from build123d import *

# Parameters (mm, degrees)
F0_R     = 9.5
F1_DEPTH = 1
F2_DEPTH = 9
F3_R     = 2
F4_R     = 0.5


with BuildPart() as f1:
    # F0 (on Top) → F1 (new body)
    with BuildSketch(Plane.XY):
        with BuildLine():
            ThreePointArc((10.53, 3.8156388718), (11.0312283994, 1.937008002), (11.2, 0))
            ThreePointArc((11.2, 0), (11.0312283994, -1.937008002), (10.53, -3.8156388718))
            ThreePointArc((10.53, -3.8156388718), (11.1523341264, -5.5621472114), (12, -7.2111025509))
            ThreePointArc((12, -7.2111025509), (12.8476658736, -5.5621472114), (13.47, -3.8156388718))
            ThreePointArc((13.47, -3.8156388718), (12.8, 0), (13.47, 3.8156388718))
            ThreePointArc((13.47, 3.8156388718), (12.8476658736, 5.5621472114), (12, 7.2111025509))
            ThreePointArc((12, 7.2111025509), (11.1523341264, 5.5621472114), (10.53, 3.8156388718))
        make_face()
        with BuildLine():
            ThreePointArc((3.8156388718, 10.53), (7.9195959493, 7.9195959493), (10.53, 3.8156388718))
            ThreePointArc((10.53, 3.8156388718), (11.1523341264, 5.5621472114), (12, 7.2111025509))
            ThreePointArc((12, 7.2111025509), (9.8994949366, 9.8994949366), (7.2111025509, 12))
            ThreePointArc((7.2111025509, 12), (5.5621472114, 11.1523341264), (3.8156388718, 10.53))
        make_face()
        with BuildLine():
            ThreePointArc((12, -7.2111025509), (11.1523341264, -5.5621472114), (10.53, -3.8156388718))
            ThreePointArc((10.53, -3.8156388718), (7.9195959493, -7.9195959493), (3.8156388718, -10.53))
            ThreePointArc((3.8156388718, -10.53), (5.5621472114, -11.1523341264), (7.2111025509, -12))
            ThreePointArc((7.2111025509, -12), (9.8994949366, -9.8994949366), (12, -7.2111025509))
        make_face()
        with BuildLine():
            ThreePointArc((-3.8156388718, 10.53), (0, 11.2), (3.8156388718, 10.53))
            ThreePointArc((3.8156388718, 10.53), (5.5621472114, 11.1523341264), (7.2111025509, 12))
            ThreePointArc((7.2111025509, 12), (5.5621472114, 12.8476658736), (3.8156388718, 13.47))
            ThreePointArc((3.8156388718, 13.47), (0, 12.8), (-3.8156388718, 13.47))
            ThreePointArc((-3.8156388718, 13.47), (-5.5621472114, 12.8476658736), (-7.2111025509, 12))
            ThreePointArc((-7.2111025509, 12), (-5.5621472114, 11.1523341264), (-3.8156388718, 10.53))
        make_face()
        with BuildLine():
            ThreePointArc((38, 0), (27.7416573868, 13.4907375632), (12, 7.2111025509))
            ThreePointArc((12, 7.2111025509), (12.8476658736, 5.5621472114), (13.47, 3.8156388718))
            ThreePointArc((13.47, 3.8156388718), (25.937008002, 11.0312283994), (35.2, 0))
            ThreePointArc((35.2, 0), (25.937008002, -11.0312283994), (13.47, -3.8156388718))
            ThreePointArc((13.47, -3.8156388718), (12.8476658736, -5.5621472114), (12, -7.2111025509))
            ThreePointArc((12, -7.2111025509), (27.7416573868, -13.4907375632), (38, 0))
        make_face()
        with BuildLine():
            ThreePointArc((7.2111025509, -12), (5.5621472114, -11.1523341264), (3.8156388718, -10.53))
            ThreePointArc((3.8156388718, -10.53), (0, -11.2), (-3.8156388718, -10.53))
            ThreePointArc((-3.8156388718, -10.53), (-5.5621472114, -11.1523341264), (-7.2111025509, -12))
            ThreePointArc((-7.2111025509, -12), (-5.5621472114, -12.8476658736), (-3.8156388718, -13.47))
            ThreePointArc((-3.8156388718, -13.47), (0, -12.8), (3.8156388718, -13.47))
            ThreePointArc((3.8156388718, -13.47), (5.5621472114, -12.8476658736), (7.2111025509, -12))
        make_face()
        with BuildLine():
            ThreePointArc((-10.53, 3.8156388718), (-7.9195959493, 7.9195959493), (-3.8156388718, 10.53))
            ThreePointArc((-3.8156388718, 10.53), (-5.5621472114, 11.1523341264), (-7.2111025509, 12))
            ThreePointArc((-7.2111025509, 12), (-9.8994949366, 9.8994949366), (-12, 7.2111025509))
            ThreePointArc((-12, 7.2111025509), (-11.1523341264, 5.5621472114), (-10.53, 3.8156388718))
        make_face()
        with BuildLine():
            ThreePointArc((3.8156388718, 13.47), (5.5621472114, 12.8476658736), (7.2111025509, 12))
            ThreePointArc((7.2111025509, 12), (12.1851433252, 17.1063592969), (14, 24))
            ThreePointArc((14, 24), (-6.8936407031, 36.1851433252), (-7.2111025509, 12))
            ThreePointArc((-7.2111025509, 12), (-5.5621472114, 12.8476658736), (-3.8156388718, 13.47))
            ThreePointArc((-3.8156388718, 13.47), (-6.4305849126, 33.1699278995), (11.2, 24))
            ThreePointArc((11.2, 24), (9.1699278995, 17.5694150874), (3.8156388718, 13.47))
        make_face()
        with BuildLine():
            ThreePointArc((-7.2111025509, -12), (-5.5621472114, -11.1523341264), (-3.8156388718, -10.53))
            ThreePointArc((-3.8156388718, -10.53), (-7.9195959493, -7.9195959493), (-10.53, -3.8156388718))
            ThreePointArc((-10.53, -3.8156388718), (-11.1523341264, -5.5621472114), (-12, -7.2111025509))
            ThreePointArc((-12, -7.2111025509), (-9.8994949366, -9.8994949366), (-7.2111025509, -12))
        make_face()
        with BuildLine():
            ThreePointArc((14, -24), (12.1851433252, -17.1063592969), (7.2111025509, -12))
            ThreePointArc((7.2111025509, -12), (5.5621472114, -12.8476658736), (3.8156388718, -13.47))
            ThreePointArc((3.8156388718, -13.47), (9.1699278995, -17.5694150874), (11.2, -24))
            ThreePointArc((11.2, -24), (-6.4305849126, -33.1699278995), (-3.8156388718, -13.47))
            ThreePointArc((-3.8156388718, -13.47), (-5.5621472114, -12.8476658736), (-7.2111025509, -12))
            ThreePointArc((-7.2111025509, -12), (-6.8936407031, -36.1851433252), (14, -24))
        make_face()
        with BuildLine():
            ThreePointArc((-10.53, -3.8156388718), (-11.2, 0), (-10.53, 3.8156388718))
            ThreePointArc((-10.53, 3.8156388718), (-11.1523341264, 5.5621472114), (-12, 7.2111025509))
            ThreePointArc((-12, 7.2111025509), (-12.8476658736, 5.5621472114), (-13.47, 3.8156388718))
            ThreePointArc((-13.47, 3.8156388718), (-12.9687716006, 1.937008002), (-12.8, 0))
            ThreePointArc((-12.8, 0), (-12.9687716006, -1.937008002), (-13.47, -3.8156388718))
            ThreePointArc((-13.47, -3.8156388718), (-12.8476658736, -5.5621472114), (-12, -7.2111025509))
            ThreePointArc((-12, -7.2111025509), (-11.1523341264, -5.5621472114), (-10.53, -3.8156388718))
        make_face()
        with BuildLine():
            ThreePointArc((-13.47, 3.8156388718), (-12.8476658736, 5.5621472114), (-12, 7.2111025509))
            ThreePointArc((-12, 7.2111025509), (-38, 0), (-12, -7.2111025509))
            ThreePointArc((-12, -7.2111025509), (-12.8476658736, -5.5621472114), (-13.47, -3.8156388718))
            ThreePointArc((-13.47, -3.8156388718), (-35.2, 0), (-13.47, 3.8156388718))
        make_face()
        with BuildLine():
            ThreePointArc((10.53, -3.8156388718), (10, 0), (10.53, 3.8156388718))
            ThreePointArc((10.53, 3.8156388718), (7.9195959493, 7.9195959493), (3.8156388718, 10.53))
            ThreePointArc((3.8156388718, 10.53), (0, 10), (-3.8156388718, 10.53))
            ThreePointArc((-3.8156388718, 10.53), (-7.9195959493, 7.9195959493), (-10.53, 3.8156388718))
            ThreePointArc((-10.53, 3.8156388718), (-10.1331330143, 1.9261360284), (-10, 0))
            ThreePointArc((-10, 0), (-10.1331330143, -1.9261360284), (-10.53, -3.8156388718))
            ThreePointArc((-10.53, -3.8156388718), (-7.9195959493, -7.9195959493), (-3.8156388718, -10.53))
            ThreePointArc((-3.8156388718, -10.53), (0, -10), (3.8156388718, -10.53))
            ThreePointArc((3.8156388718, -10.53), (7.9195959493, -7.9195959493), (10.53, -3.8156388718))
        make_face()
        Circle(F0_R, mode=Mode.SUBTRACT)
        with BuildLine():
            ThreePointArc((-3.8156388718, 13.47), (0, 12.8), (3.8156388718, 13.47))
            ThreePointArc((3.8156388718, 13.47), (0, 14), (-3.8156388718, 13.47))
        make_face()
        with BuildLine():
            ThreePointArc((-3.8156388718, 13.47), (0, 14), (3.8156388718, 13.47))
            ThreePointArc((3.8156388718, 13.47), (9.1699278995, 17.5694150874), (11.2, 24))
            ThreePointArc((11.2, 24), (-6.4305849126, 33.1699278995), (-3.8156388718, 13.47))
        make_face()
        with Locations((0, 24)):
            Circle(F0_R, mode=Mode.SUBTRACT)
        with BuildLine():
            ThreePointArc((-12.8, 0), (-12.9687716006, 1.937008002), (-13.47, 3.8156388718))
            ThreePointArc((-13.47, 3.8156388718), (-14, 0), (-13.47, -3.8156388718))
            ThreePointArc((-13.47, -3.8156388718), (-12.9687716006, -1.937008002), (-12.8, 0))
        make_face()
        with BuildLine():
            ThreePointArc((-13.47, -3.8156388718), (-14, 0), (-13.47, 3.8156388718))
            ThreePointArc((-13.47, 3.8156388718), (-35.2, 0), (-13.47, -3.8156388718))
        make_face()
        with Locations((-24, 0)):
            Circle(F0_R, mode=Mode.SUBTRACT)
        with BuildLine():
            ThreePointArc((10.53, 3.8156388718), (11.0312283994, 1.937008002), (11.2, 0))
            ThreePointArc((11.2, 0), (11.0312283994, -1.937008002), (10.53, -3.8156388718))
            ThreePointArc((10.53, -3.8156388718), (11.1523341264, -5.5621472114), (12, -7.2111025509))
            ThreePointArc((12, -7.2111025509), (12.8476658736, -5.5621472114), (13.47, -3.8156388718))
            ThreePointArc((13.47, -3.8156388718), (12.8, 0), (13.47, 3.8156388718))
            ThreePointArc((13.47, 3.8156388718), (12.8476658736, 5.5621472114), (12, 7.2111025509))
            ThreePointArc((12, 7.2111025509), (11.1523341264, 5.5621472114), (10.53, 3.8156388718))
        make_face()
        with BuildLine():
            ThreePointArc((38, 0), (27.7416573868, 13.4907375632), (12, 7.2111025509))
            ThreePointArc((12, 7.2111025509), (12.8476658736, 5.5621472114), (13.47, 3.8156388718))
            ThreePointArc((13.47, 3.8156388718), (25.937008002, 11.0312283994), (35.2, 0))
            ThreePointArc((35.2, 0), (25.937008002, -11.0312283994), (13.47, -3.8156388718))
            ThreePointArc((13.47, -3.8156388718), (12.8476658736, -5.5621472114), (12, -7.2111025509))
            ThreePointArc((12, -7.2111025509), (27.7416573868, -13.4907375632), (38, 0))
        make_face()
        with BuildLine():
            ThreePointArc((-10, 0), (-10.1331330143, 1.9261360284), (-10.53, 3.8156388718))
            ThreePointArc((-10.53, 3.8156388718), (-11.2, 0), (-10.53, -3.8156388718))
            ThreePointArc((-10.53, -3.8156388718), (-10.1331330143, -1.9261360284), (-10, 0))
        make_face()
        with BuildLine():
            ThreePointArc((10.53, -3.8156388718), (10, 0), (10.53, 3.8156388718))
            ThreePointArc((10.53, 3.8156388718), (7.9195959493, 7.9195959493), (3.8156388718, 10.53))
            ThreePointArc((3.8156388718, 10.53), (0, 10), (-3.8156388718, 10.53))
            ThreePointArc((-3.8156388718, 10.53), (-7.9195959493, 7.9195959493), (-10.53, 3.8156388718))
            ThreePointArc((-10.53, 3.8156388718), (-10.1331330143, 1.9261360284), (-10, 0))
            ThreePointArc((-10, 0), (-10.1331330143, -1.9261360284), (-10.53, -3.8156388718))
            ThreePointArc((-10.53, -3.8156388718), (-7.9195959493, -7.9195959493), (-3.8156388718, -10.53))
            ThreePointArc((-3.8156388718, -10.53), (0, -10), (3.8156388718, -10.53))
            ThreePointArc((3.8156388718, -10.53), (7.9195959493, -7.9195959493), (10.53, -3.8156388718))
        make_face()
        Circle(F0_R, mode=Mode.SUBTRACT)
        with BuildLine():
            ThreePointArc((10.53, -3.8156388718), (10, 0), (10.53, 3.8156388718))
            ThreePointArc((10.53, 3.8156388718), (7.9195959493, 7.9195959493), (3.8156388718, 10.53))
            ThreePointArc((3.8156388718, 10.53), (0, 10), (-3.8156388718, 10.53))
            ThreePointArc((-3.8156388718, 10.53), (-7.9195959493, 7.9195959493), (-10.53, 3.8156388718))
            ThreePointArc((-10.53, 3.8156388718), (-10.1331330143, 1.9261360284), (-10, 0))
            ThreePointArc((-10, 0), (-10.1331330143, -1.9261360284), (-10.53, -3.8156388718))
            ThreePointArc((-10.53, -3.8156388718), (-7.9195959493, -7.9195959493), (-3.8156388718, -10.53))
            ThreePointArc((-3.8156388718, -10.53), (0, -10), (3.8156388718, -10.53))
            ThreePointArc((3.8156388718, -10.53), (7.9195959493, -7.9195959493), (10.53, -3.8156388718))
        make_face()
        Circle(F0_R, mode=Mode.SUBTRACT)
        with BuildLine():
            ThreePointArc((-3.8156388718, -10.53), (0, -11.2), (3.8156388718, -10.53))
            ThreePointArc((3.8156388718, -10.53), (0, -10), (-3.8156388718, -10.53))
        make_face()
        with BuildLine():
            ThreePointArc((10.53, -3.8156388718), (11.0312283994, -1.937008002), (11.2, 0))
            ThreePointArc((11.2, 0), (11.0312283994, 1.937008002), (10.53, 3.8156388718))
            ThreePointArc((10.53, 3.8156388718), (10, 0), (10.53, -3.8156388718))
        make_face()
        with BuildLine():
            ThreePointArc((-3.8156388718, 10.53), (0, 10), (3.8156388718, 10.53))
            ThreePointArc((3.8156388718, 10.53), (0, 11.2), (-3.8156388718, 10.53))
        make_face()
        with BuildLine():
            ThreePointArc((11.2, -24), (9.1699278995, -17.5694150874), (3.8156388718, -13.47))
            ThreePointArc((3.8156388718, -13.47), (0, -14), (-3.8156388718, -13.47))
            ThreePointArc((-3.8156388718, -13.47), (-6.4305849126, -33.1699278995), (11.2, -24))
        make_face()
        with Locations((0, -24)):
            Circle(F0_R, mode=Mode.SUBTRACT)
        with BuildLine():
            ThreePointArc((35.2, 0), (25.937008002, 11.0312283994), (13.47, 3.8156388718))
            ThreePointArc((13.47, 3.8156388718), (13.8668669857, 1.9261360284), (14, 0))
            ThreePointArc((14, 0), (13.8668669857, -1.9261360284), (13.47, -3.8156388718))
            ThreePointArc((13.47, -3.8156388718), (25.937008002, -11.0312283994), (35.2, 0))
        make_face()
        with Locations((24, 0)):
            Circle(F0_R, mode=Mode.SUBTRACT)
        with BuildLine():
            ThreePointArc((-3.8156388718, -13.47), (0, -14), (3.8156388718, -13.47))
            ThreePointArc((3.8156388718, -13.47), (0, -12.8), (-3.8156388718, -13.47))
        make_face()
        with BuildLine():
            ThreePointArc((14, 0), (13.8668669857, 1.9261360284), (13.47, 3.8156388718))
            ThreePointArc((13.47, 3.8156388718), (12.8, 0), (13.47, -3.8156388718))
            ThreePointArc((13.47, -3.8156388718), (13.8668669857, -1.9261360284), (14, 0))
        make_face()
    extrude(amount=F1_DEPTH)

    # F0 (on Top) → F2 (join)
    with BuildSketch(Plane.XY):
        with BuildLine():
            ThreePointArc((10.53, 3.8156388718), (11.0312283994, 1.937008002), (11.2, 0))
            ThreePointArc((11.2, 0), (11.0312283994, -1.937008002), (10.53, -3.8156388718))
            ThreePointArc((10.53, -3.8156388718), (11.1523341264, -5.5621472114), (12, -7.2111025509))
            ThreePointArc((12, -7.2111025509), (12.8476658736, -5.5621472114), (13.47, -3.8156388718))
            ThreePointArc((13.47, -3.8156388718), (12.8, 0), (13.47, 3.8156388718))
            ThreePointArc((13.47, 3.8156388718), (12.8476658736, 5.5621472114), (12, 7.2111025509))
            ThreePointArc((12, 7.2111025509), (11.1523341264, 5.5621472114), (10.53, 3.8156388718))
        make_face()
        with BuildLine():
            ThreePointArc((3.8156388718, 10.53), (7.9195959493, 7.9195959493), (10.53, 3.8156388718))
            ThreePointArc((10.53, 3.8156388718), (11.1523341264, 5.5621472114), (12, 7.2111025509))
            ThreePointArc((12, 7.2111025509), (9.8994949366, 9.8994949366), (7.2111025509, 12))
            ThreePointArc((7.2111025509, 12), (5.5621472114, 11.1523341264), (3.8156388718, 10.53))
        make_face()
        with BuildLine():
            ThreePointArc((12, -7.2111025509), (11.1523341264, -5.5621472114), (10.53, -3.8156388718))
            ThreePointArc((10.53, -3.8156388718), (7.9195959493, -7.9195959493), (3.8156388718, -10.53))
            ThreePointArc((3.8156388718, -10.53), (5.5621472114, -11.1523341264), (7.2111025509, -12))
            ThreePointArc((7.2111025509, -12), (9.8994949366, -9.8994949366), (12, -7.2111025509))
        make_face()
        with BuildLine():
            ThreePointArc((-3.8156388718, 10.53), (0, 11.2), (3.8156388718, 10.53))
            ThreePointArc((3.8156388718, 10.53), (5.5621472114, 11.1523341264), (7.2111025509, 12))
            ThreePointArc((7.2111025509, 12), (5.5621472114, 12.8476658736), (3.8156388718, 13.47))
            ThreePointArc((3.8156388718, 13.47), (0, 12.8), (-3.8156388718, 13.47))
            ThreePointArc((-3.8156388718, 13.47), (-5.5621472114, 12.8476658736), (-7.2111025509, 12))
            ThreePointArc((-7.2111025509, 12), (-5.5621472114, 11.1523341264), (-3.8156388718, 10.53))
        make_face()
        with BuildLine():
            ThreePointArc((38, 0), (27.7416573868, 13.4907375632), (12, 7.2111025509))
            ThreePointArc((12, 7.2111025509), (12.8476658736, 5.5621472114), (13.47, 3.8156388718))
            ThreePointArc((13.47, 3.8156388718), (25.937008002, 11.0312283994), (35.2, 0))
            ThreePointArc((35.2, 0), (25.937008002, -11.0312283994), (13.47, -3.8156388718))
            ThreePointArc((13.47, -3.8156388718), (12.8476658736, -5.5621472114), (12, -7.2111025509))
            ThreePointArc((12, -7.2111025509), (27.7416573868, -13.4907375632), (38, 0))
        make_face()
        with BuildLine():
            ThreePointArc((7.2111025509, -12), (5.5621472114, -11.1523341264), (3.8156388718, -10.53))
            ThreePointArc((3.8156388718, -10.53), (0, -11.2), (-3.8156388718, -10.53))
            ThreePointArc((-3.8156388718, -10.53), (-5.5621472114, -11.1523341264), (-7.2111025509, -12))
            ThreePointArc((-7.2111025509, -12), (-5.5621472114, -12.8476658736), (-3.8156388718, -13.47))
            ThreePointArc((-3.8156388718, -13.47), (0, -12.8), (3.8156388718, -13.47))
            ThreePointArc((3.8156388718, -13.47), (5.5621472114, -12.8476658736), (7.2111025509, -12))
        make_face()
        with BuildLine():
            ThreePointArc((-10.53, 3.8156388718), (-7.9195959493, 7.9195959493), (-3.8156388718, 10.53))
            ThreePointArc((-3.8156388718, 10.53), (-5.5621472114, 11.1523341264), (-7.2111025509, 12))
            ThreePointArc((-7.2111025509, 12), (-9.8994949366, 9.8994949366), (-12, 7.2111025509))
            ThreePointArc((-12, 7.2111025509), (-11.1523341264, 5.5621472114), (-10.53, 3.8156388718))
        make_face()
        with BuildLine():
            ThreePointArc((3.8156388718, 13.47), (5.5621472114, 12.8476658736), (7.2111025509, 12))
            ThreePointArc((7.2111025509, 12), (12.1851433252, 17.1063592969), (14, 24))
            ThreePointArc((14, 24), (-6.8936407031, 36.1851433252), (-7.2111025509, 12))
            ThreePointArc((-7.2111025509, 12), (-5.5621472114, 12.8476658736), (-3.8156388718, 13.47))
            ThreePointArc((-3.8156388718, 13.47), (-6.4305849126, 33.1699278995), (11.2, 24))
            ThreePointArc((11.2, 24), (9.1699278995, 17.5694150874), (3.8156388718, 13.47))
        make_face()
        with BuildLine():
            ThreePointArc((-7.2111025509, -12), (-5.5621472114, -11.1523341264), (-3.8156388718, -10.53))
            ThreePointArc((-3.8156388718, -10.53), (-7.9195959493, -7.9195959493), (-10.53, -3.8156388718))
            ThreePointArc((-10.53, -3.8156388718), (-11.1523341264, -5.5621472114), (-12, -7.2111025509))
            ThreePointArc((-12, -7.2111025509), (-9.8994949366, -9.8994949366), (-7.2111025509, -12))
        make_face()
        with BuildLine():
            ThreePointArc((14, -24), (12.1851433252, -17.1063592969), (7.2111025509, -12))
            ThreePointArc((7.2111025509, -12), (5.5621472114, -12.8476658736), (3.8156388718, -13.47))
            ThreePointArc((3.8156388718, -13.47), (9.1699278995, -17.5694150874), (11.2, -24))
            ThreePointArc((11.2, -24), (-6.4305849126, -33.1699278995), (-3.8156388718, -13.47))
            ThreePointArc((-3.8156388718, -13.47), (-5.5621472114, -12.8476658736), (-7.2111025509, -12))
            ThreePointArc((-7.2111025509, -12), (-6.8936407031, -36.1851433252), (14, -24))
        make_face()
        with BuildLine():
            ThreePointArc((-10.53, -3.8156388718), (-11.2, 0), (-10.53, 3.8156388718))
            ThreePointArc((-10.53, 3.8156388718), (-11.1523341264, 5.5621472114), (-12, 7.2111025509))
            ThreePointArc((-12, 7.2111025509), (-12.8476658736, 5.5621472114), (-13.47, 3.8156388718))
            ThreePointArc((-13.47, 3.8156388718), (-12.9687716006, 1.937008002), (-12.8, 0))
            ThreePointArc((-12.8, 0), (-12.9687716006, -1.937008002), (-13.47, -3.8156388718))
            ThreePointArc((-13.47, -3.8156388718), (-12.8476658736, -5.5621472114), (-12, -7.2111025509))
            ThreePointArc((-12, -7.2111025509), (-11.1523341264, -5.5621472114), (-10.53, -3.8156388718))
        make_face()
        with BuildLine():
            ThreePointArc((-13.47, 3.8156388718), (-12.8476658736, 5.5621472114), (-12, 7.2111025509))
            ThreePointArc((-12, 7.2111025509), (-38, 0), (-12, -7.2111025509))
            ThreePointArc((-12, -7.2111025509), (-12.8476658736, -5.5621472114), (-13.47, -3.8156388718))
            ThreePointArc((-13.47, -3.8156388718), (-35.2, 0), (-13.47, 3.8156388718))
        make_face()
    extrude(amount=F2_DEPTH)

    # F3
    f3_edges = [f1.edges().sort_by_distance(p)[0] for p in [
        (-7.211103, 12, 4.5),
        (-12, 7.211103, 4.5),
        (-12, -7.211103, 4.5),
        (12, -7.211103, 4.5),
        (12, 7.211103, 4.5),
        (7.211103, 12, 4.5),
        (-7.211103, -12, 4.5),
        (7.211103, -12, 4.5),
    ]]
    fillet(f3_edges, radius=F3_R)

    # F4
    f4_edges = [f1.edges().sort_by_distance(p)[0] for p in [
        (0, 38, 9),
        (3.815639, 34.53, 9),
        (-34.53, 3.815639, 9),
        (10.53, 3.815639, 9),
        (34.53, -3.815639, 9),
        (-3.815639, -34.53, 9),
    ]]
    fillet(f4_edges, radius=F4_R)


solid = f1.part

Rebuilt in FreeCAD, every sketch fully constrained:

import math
import FreeCAD as App
import Part
import Sketcher
from FreeCAD import Vector
Q = App.Units.Quantity


def edges_at(feature, points):
    """Names of the edges that pass closest to the given points."""
    edges = feature.Shape.Edges
    near = lambda p: min(range(len(edges)), key=lambda i: edges[i].distToShape(Part.Vertex(*p))[0])
    return sorted({f"Edge{near(p) + 1}" for p in points})

doc = App.newDocument("Part")
body = doc.addObject("PartDesign::Body", "Body")

sketch1 = body.newObject("Sketcher::SketchObject", "Sketch")
sketch1.AttachmentSupport = (doc.getObject("XY_Plane"), [""])
sketch1.MapMode = "FlatFace"
sketch1.addGeometry([
    Part.ArcOfCircle(Part.Circle(Vector(0, 0, 0), Vector(0, 0, 1), 14), math.radians(121), math.radians(149)),
    Part.ArcOfCircle(Part.Circle(Vector(-24, 0, 0), Vector(0, 0, 1), 14), math.radians(31), math.radians(329)),
    Part.ArcOfCircle(Part.Circle(Vector(0, 0, 0), Vector(0, 0, 1), 14), math.radians(-149), math.radians(-121)),
    Part.ArcOfCircle(Part.Circle(Vector(0, -24, 0), Vector(0, 0, 1), 14), math.radians(121), math.radians(360)),
    Part.ArcOfCircle(Part.Circle(Vector(0, -24, 0), Vector(0, 0, 1), 14), math.radians(0), math.radians(59)),
    Part.ArcOfCircle(Part.Circle(Vector(0, 0, 0), Vector(0, 0, 1), 14), math.radians(-59), math.radians(-31)),
    Part.ArcOfCircle(Part.Circle(Vector(24, 0, 0), Vector(0, 0, 1), 14), math.radians(-149), math.radians(0)),
    Part.ArcOfCircle(Part.Circle(Vector(24, 0, 0), Vector(0, 0, 1), 14), math.radians(0), math.radians(149)),
    Part.ArcOfCircle(Part.Circle(Vector(0, 0, 0), Vector(0, 0, 1), 14), math.radians(31), math.radians(59)),
    Part.ArcOfCircle(Part.Circle(Vector(0, 24, 0), Vector(0, 0, 1), 14), math.radians(-59), math.radians(0)),
    Part.ArcOfCircle(Part.Circle(Vector(0, 24, 0), Vector(0, 0, 1), 14), math.radians(0), math.radians(239)),
    Part.Circle(Vector(0, -24, 0), Vector(0, 0, 1), 10),
    Part.Circle(Vector(-24, 0, 0), Vector(0, 0, 1), 10),
    Part.Circle(Vector(0, 0, 0), Vector(0, 0, 1), 10),
    Part.Circle(Vector(24, 0, 0), Vector(0, 0, 1), 10),
    Part.Circle(Vector(0, 24, 0), Vector(0, 0, 1), 10),
], False)
sketch1.addConstraint([
    Sketcher.Constraint("Coincident", 0, 2, 1, 1),
    Sketcher.Constraint("Coincident", 1, 2, 2, 1),
    Sketcher.Constraint("Coincident", 2, 2, 3, 1),
    Sketcher.Constraint("Tangent", 3, 2, 4, 1),
    Sketcher.Constraint("Coincident", 4, 2, 5, 1),
    Sketcher.Constraint("Coincident", 5, 2, 6, 1),
    Sketcher.Constraint("Tangent", 6, 2, 7, 1),
    Sketcher.Constraint("Coincident", 7, 2, 8, 1),
    Sketcher.Constraint("Coincident", 8, 2, 9, 1),
    Sketcher.Constraint("Tangent", 9, 2, 10, 1),
    Sketcher.Constraint("Coincident", 10, 2, 0, 1),
    Sketcher.Constraint("Coincident", 0, 3, -1, 1),
    Sketcher.Constraint("Coincident", 2, 3, -1, 1),
    Sketcher.Constraint("Coincident", 5, 3, -1, 1),
    Sketcher.Constraint("Coincident", 8, 3, -1, 1),
    Sketcher.Constraint("Coincident", 13, 3, -1, 1),
    Sketcher.Constraint("Coincident", 11, 3, 3, 3),
    Sketcher.Constraint("Coincident", 12, 3, 1, 3),
    Sketcher.Constraint("Coincident", 14, 3, 6, 3),
    Sketcher.Constraint("Coincident", 15, 3, 9, 3),
    Sketcher.Constraint("Equal", 0, 1),
    Sketcher.Constraint("Equal", 1, 2),
    Sketcher.Constraint("Equal", 2, 3),
    Sketcher.Constraint("Equal", 3, 4),
    Sketcher.Constraint("Equal", 4, 5),
    Sketcher.Constraint("Equal", 5, 6),
    Sketcher.Constraint("Equal", 6, 7),
    Sketcher.Constraint("Equal", 7, 8),
    Sketcher.Constraint("Equal", 8, 9),
    Sketcher.Constraint("Equal", 9, 10),
    Sketcher.Constraint("Equal", 11, 12),
    Sketcher.Constraint("Equal", 12, 13),
    Sketcher.Constraint("Equal", 13, 14),
    Sketcher.Constraint("Equal", 14, 15),
    Sketcher.Constraint("Symmetric", 1, 3, 6, 3, -1, 1),
    Sketcher.Constraint("Symmetric", 3, 3, 9, 3, -1, 1),
    Sketcher.Constraint("Symmetric", 3, 2, 9, 2, -1),
    Sketcher.Constraint("PointOnObject", 1, 3, -1),
    Sketcher.Constraint("PointOnObject", 6, 2, -1),
    Sketcher.Constraint("Horizontal", 11, 3, 3, 2),
    Sketcher.Constraint("Diameter", 11, Q("19 mm")),
    Sketcher.Constraint("Radius", 0, Q("14 mm")),
    Sketcher.Constraint("DistanceX", 1, 3, -1, 1, Q("24 mm")),
    Sketcher.Constraint("DistanceY", 3, 3, -1, 1, Q("24 mm")),
])
pad1 = body.newObject("PartDesign::Pad", "Pad")
pad1.Profile = sketch1
pad1.Length = 1

sketch2 = body.newObject("Sketcher::SketchObject", "Sketch001")
sketch2.AttachmentSupport = (doc.getObject("XY_Plane"), [""])
sketch2.MapMode = "FlatFace"
sketch2.addGeometry([
    Part.ArcOfCircle(Part.Circle(Vector(0, 0, 0), Vector(0, 0, 1), 14), math.radians(-149), math.radians(-121)),
    Part.ArcOfCircle(Part.Circle(Vector(0, -24, 0), Vector(0, 0, 1), 14), math.radians(121), math.radians(360)),
    Part.ArcOfCircle(Part.Circle(Vector(0, -24, 0), Vector(0, 0, 1), 14), math.radians(0), math.radians(59)),
    Part.ArcOfCircle(Part.Circle(Vector(0, 0, 0), Vector(0, 0, 1), 14), math.radians(-59), math.radians(-31)),
    Part.ArcOfCircle(Part.Circle(Vector(24, 0, 0), Vector(0, 0, 1), 14), math.radians(-149), math.radians(0)),
    Part.ArcOfCircle(Part.Circle(Vector(24, 0, 0), Vector(0, 0, 1), 14), math.radians(0), math.radians(149)),
    Part.ArcOfCircle(Part.Circle(Vector(0, 0, 0), Vector(0, 0, 1), 14), math.radians(31), math.radians(59)),
    Part.ArcOfCircle(Part.Circle(Vector(0, 24, 0), Vector(0, 0, 1), 14), math.radians(-59), math.radians(0)),
    Part.ArcOfCircle(Part.Circle(Vector(0, 24, 0), Vector(0, 0, 1), 14), math.radians(0), math.radians(239)),
    Part.ArcOfCircle(Part.Circle(Vector(0, 0, 0), Vector(0, 0, 1), 14), math.radians(121), math.radians(149)),
    Part.ArcOfCircle(Part.Circle(Vector(-24, 0, 0), Vector(0, 0, 1), 14), math.radians(31), math.radians(329)),
    Part.ArcOfCircle(Part.Circle(Vector(0, 0, 0), Vector(0, 0, 1), 11.2), math.radians(0), math.radians(19.92)),
    Part.ArcOfCircle(Part.Circle(Vector(0, 0, 0), Vector(0, 0, 1), 11.2), math.radians(-19.92), math.radians(0)),
    Part.ArcOfCircle(Part.Circle(Vector(0, 0, 0), Vector(0, 0, 1), 11.2), math.radians(-70), math.radians(-20)),
    Part.ArcOfCircle(Part.Circle(Vector(0, 0, 0), Vector(0, 0, 1), 11.2), math.radians(-110), math.radians(-70)),
    Part.ArcOfCircle(Part.Circle(Vector(0, 0, 0), Vector(0, 0, 1), 11.2), math.radians(-160), math.radians(-110)),
    Part.ArcOfCircle(Part.Circle(Vector(0, 0, 0), Vector(0, 0, 1), 11.2), math.radians(160), math.radians(200)),
    Part.ArcOfCircle(Part.Circle(Vector(0, 0, 0), Vector(0, 0, 1), 11.2), math.radians(110), math.radians(160)),
    Part.ArcOfCircle(Part.Circle(Vector(0, 0, 0), Vector(0, 0, 1), 11.2), math.radians(70), math.radians(110)),
    Part.ArcOfCircle(Part.Circle(Vector(0, 0, 0), Vector(0, 0, 1), 11.2), math.radians(20), math.radians(70)),
    Part.ArcOfCircle(Part.Circle(Vector(-24, 0, 0), Vector(0, 0, 1), 11.2), math.radians(0), math.radians(19.92)),
    Part.ArcOfCircle(Part.Circle(Vector(-24, 0, 0), Vector(0, 0, 1), 11.2), math.radians(-19.92), math.radians(0)),
    Part.ArcOfCircle(Part.Circle(Vector(-24, 0, 0), Vector(0, 0, 1), 11.2), math.radians(20), math.radians(340)),
    Part.ArcOfCircle(Part.Circle(Vector(0, -24, 0), Vector(0, 0, 1), 11.2), math.radians(0), math.radians(70)),
    Part.ArcOfCircle(Part.Circle(Vector(0, -24, 0), Vector(0, 0, 1), 11.2), math.radians(70), math.radians(360)),
    Part.ArcOfCircle(Part.Circle(Vector(0, 24, 0), Vector(0, 0, 1), 11.2), math.radians(0), math.radians(290)),
    Part.ArcOfCircle(Part.Circle(Vector(0, 24, 0), Vector(0, 0, 1), 11.2), math.radians(-70), math.radians(0)),
    Part.ArcOfCircle(Part.Circle(Vector(24, 0, 0), Vector(0, 0, 1), 11.2), math.radians(160), math.radians(200)),
    Part.ArcOfCircle(Part.Circle(Vector(24, 0, 0), Vector(0, 0, 1), 11.2), math.radians(0), math.radians(160)),
    Part.ArcOfCircle(Part.Circle(Vector(24, 0, 0), Vector(0, 0, 1), 11.2), math.radians(-160), math.radians(0)),
], False)
sketch2.addConstraint([
    Sketcher.Constraint("Coincident", 0, 2, 1, 1),
    Sketcher.Constraint("Tangent", 1, 2, 2, 1),
    Sketcher.Constraint("Coincident", 2, 2, 3, 1),
    Sketcher.Constraint("Coincident", 3, 2, 4, 1),
    Sketcher.Constraint("Tangent", 4, 2, 5, 1),
    Sketcher.Constraint("Coincident", 5, 2, 6, 1),
    Sketcher.Constraint("Coincident", 6, 2, 7, 1),
    Sketcher.Constraint("Tangent", 7, 2, 8, 1),
    Sketcher.Constraint("Coincident", 8, 2, 9, 1),
    Sketcher.Constraint("Coincident", 9, 2, 10, 1),
    Sketcher.Constraint("Coincident", 10, 2, 0, 1),
    Sketcher.Constraint("Tangent", 11, 1, 12, 2),
    Sketcher.Constraint("Tangent", 12, 1, 13, 2),
    Sketcher.Constraint("Tangent", 13, 1, 14, 2),
    Sketcher.Constraint("Tangent", 14, 1, 15, 2),
    Sketcher.Constraint("Tangent", 15, 1, 16, 2),
    Sketcher.Constraint("Tangent", 16, 1, 17, 2),
    Sketcher.Constraint("Tangent", 17, 1, 18, 2),
    Sketcher.Constraint("Tangent", 18, 1, 19, 2),
    Sketcher.Constraint("Tangent", 19, 1, 11, 2),
    Sketcher.Constraint("Tangent", 20, 1, 21, 2),
    Sketcher.Constraint("Tangent", 21, 1, 22, 2),
    Sketcher.Constraint("Tangent", 22, 1, 20, 2),
    Sketcher.Constraint("Tangent", 23, 1, 24, 2),
    Sketcher.Constraint("Coincident", 24, 1, 23, 2),
    Sketcher.Constraint("Tangent", 25, 1, 26, 2),
    Sketcher.Constraint("Coincident", 26, 1, 25, 2),
    Sketcher.Constraint("Tangent", 27, 1, 28, 2),
    Sketcher.Constraint("Tangent", 28, 1, 29, 2),
    Sketcher.Constraint("Tangent", 29, 1, 27, 2),
    Sketcher.Constraint("Coincident", 0, 3, -1, 1),
    Sketcher.Constraint("Coincident", 3, 3, -1, 1),
    Sketcher.Constraint("Coincident", 6, 3, -1, 1),
    Sketcher.Constraint("Coincident", 9, 3, -1, 1),
    Sketcher.Constraint("Coincident", 11, 3, -1, 1),
    Sketcher.Constraint("Coincident", 13, 3, -1, 1),
    Sketcher.Constraint("Coincident", 15, 3, -1, 1),
    Sketcher.Constraint("Coincident", 17, 3, -1, 1),
    Sketcher.Constraint("Coincident", 20, 3, 10, 3),
    Sketcher.Constraint("Coincident", 23, 3, 1, 3),
    Sketcher.Constraint("Coincident", 25, 3, 7, 3),
    Sketcher.Constraint("Coincident", 27, 3, 4, 3),
    Sketcher.Constraint("Equal", 0, 1),
    Sketcher.Constraint("Equal", 1, 2),
    Sketcher.Constraint("Equal", 2, 3),
    Sketcher.Constraint("Equal", 3, 4),
    Sketcher.Constraint("Equal", 4, 5),
    Sketcher.Constraint("Equal", 5, 6),
    Sketcher.Constraint("Equal", 6, 7),
    Sketcher.Constraint("Equal", 7, 8),
    Sketcher.Constraint("Equal", 8, 9),
    Sketcher.Constraint("Equal", 9, 10),
    Sketcher.Constraint("Equal", 19, 20),
    Sketcher.Constraint("Equal", 22, 23),
    Sketcher.Constraint("Equal", 24, 25),
    Sketcher.Constraint("Equal", 26, 27),
    Sketcher.Constraint("Symmetric", 1, 3, 7, 3, -1, 1),
    Sketcher.Constraint("Symmetric", 4, 3, 10, 3, -1, 1),
    Sketcher.Constraint("Symmetric", 22, 1, 27, 1, -2),
    Sketcher.Constraint("Symmetric", 1, 2, 7, 2, -1),
    Sketcher.Constraint("PointOnObject", 4, 2, -1),
    Sketcher.Constraint("PointOnObject", 11, 1, -1),
    Sketcher.Constraint("PointOnObject", 20, 1, -1),
    Sketcher.Constraint("PointOnObject", 28, 1, -1),
    Sketcher.Constraint("Horizontal", 24, 3, 1, 2),
    Sketcher.Constraint("Horizontal", 13, 1, 14, 1),
    Sketcher.Constraint("Horizontal", 12, 1, 15, 1),
    Sketcher.Constraint("Horizontal", 17, 1, 18, 1),
    Sketcher.Constraint("Horizontal", 16, 1, 19, 1),
    Sketcher.Constraint("Horizontal", 15, 1, 21, 1),
    Sketcher.Constraint("Horizontal", 19, 1, 22, 1),
    Sketcher.Constraint("Horizontal", 1, 2, 23, 1),
    Sketcher.Constraint("Horizontal", 7, 2, 25, 1),
    Sketcher.Constraint("Horizontal", 21, 1, 29, 1),
    Sketcher.Constraint("Vertical", 15, 1, 16, 1),
    Sketcher.Constraint("Vertical", 14, 1, 17, 1),
    Sketcher.Constraint("Vertical", 18, 1, 24, 1),
    Sketcher.Constraint("Vertical", 24, 1, 26, 1),
    Sketcher.Constraint("Radius", 0, Q("14 mm")),
    Sketcher.Constraint("Radius", 11, Q("11.2 mm")),
    Sketcher.Constraint("DistanceY", 1, 3, -1, 1, Q("24 mm")),
    Sketcher.Constraint("DistanceX", -1, 1, 4, 3, Q("24 mm")),
    Sketcher.Constraint("DistanceX", -1, 1, 12, 1, Q("10.53 mm")),
    Sketcher.Constraint("DistanceY", 13, 1, -1, 1, Q("10.53 mm")),
])
pad2 = body.newObject("PartDesign::Pad", "Pad001")
pad2.Profile = sketch2
pad2.Length = 9
doc.recompute()

fillet = body.newObject("PartDesign::Fillet", "Fillet")
fillet.Base = (pad2, edges_at(pad2, [
    (-7.211, 12, 4.5),
    (-12, 7.211, 4.5),
    (-12, -7.211, 4.5),
    (12, -7.211, 4.5),
    (12, 7.211, 4.5),
    (7.211, 12, 4.5),
    (-7.211, -12, 4.5),
    (7.211, -12, 4.5),
]))
fillet.Radius = 2
doc.recompute()

fillet2 = body.newObject("PartDesign::Fillet", "Fillet001")
fillet2.Base = (fillet, edges_at(fillet, [
    (-5.76, 36.76, 9),
    (-9.17, 30.431, 9),
    (-35.2, 0, 9),
    (7.92, 7.92, 9),
    (25.937, -11.031, 9),
    (-9.17, -30.431, 9),
]))
fillet2.Radius = 0.5

doc.recompute()
